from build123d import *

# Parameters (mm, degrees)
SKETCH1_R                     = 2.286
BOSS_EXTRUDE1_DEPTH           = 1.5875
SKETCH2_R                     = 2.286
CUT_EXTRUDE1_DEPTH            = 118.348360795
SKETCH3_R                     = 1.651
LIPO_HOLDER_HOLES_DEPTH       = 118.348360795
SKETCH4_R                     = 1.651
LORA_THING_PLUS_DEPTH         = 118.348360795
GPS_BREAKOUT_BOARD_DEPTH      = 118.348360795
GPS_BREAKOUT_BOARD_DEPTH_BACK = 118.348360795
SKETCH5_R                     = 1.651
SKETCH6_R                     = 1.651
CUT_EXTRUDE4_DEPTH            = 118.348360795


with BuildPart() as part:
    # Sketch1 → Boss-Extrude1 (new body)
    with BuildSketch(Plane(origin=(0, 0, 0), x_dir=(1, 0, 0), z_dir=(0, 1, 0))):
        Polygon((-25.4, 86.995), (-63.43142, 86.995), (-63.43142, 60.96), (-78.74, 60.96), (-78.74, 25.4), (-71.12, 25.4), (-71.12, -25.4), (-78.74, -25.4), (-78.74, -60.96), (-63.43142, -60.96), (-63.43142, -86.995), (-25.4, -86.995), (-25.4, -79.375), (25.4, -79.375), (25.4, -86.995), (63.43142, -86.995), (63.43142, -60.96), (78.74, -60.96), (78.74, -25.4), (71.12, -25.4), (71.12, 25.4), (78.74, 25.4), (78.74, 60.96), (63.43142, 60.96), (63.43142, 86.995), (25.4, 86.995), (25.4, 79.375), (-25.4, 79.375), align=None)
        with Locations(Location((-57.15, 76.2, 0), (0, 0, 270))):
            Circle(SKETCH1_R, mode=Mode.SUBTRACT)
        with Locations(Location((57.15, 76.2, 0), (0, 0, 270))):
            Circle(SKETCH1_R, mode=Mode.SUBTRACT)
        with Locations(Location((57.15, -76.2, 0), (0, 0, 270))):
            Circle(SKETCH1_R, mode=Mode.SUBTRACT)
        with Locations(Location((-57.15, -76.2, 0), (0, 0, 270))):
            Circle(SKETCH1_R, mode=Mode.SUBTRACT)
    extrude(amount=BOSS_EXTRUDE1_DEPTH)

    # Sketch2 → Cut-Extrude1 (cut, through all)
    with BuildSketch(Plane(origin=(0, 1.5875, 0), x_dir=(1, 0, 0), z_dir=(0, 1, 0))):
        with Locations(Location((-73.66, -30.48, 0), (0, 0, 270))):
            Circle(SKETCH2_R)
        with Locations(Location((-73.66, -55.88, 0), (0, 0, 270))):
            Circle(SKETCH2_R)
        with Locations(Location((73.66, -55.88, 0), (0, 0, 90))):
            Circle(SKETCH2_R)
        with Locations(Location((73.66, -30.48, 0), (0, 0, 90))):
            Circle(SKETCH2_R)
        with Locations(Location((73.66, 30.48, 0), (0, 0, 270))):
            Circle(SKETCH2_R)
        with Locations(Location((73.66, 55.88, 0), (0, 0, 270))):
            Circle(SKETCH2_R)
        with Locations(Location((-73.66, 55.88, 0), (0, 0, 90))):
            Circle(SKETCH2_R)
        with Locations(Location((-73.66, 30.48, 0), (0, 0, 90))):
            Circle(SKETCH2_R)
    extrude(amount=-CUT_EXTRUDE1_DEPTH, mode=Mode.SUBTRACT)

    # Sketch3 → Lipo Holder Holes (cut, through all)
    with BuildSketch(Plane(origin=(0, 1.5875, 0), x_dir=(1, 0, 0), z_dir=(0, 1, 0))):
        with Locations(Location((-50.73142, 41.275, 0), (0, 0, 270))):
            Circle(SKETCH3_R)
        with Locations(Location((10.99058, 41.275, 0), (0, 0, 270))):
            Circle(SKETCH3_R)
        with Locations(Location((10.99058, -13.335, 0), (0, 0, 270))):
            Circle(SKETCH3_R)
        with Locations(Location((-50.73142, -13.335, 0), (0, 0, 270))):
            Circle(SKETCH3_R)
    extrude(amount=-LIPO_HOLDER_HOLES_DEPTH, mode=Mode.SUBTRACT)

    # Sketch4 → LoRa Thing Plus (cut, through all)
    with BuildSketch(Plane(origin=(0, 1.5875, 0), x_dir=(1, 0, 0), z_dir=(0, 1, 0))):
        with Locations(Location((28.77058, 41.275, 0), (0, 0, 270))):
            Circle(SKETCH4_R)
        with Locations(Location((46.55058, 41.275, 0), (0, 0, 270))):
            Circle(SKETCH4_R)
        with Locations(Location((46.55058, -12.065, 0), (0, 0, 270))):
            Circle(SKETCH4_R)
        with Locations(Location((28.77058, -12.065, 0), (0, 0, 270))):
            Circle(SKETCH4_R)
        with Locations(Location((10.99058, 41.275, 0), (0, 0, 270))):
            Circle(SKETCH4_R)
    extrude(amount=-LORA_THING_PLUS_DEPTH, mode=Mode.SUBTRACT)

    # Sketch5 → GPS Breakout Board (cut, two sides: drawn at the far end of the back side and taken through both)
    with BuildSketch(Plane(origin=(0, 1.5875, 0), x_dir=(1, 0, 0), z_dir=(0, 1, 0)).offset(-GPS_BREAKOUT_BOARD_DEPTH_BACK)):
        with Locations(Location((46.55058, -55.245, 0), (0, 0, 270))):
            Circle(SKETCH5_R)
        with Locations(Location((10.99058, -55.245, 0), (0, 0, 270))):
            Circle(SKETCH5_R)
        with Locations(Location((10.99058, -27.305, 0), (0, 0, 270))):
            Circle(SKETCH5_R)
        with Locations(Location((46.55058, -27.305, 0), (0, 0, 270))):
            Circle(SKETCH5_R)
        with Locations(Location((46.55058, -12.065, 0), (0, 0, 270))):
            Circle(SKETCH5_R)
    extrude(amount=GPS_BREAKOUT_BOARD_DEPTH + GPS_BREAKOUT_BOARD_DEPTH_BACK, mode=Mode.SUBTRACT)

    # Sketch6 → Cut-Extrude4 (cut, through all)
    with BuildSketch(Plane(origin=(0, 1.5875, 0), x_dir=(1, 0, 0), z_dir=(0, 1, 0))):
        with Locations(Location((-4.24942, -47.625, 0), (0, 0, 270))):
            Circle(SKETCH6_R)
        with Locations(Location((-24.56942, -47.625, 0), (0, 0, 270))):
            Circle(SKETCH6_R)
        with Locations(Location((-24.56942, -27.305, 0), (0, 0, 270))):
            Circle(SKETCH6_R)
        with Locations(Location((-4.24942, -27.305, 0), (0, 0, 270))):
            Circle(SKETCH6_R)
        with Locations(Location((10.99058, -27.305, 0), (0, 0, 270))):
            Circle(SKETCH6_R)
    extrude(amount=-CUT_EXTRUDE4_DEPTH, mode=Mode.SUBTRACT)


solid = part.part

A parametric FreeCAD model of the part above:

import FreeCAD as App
import Part
import Sketcher
from FreeCAD import Vector
Q = App.Units.Quantity

doc = App.newDocument("Part")
params = doc.addObject("Spreadsheet::Sheet", "Params")
for row, (alias, value) in enumerate([
    ("sketch1_diameter", "0.18 in"),
    ("sketch1_width", "2 in"),
    ("sketch1_width2", "0.3 in"),
    ("sketch1_height", "1.4 in"),
    ("sketch1_height2", "1.025 in"),
    ("pad1_length", "0.0625 in"),
    ("sketch2_diameter", "0.18 in"),
    ("sketch3_diameter", "0.13 in"),
    ("sketch4_diameter", "0.13 in"),
    ("sketch5_diameter", "0.13 in"),
    ("sketch6_diameter", "0.13 in"),
], start=1):
    params.set(f"A{row}", alias)
    params.set(f"B{row}", "=" + value)
    params.setAlias(f"B{row}", alias)

body = doc.addObject("PartDesign::Body", "Body")

# Sketch on XZ plane
sketch1 = body.newObject("Sketcher::SketchObject", "Sketch")
sketch1.AttachmentSupport = (doc.getObject("XZ_Plane"), [""])
sketch1.MapMode = "FlatFace"
sketch1.addGeometry(Part.LineSegment(Vector(-25.4, -86.995, 0), Vector(-63.43142, -86.995, 0)), False)
sketch1.addGeometry(Part.LineSegment(Vector(-63.43142, -86.995, 0), Vector(-63.43142, -60.96, 0)), False)
sketch1.addGeometry(Part.LineSegment(Vector(-63.43142, -60.96, 0), Vector(-78.74, -60.96, 0)), False)
sketch1.addGeometry(Part.LineSegment(Vector(-78.74, -60.96, 0), Vector(-78.74, -25.4, 0)), False)
sketch1.addGeometry(Part.LineSegment(Vector(-78.74, -25.4, 0), Vector(-71.12, -25.4, 0)), False)
sketch1.addGeometry(Part.LineSegment(Vector(-71.12, -25.4, 0), Vector(-71.12, 25.4, 0)), False)
sketch1.addGeometry(Part.LineSegment(Vector(-71.12, 25.4, 0), Vector(-78.74, 25.4, 0)), False)
sketch1.addGeometry(Part.LineSegment(Vector(-78.74, 25.4, 0), Vector(-78.74, 60.96, 0)), False)
sketch1.addGeometry(Part.LineSegment(Vector(-78.74, 60.96, 0), Vector(-63.43142, 60.96, 0)), False)
sketch1.addGeometry(Part.LineSegment(Vector(-63.43142, 60.96, 0), Vector(-63.43142, 86.995, 0)), False)
sketch1.addGeometry(Part.LineSegment(Vector(-63.43142, 86.995, 0), Vector(-25.4, 86.995, 0)), False)
sketch1.addGeometry(Part.LineSegment(Vector(-25.4, 86.995, 0), Vector(-25.4, 79.375, 0)), False)
sketch1.addGeometry(Part.LineSegment(Vector(-25.4, 79.375, 0), Vector(25.4, 79.375, 0)), False)
sketch1.addGeometry(Part.LineSegment(Vector(25.4, 79.375, 0), Vector(25.4, 86.995, 0)), False)
sketch1.addGeometry(Part.LineSegment(Vector(25.4, 86.995, 0), Vector(63.43142, 86.995, 0)), False)
sketch1.addGeometry(Part.LineSegment(Vector(63.43142, 86.995, 0), Vector(63.43142, 60.96, 0)), False)
sketch1.addGeometry(Part.LineSegment(Vector(63.43142, 60.96, 0), Vector(78.74, 60.96, 0)), False)
sketch1.addGeometry(Part.LineSegment(Vector(78.74, 60.96, 0), Vector(78.74, 25.4, 0)), False)
sketch1.addGeometry(Part.LineSegment(Vector(78.74, 25.4, 0), Vector(71.12, 25.4, 0)), False)
sketch1.addGeometry(Part.LineSegment(Vector(71.12, 25.4, 0), Vector(71.12, -25.4, 0)), False)
sketch1.addGeometry(Part.LineSegment(Vector(71.12, -25.4, 0), Vector(78.74, -25.4, 0)), False)
sketch1.addGeometry(Part.LineSegment(Vector(78.74, -25.4, 0), Vector(78.74, -60.96, 0)), False)
sketch1.addGeometry(Part.LineSegment(Vector(78.74, -60.96, 0), Vector(63.43142, -60.96, 0)), False)
sketch1.addGeometry(Part.LineSegment(Vector(63.43142, -60.96, 0), Vector(63.43142, -86.995, 0)), False)
sketch1.addGeometry(Part.LineSegment(Vector(63.43142, -86.995, 0), Vector(25.4, -86.995, 0)), False)
sketch1.addGeometry(Part.LineSegment(Vector(25.4, -86.995, 0), Vector(25.4, -79.375, 0)), False)
sketch1.addGeometry(Part.LineSegment(Vector(25.4, -79.375, 0), Vector(-25.4, -79.375, 0)), False)
sketch1.addGeometry(Part.LineSegment(Vector(-25.4, -79.375, 0), Vector(-25.4, -86.995, 0)), False)
sketch1.addGeometry(Part.Circle(Vector(-57.15, 76.2, 0), Vector(0, 0, 1), 2.286), False)
sketch1.addGeometry(Part.Circle(Vector(57.15, 76.2, 0), Vector(0, 0, 1), 2.286), False)
sketch1.addGeometry(Part.Circle(Vector(-57.15, -76.2, 0), Vector(0, 0, 1), 2.286), False)
sketch1.addGeometry(Part.Circle(Vector(57.15, -76.2, 0), Vector(0, 0, 1), 2.286), False)
sketch1.addConstraint(Sketcher.Constraint("Coincident", 0, 2, 1, 1))
sketch1.addConstraint(Sketcher.Constraint("Coincident", 1, 2, 2, 1))
sketch1.addConstraint(Sketcher.Constraint("Coincident", 2, 2, 3, 1))
sketch1.addConstraint(Sketcher.Constraint("Coincident", 3, 2, 4, 1))
sketch1.addConstraint(Sketcher.Constraint("Coincident", 4, 2, 5, 1))
sketch1.addConstraint(Sketcher.Constraint("Coincident", 5, 2, 6, 1))
sketch1.addConstraint(Sketcher.Constraint("Coincident", 6, 2, 7, 1))
sketch1.addConstraint(Sketcher.Constraint("Coincident", 7, 2, 8, 1))
sketch1.addConstraint(Sketcher.Constraint("Coincident", 8, 2, 9, 1))
sketch1.addConstraint(Sketcher.Constraint("Coincident", 9, 2, 10, 1))
sketch1.addConstraint(Sketcher.Constraint("Coincident", 10, 2, 11, 1))
sketch1.addConstraint(Sketcher.Constraint("Coincident", 11, 2, 12, 1))
sketch1.addConstraint(Sketcher.Constraint("Coincident", 12, 2, 13, 1))
sketch1.addConstraint(Sketcher.Constraint("Coincident", 13, 2, 14, 1))
sketch1.addConstraint(Sketcher.Constraint("Coincident", 14, 2, 15, 1))
sketch1.addConstraint(Sketcher.Constraint("Coincident", 15, 2, 16, 1))
sketch1.addConstraint(Sketcher.Constraint("Coincident", 16, 2, 17, 1))
sketch1.addConstraint(Sketcher.Constraint("Coincident", 17, 2, 18, 1))
sketch1.addConstraint(Sketcher.Constraint("Coincident", 18, 2, 19, 1))
sketch1.addConstraint(Sketcher.Constraint("Coincident", 19, 2, 20, 1))
sketch1.addConstraint(Sketcher.Constraint("Coincident", 20, 2, 21, 1))
sketch1.addConstraint(Sketcher.Constraint("Coincident", 21, 2, 22, 1))
sketch1.addConstraint(Sketcher.Constraint("Coincident", 22, 2, 23, 1))
sketch1.addConstraint(Sketcher.Constraint("Coincident", 23, 2, 24, 1))
sketch1.addConstraint(Sketcher.Constraint("Coincident", 24, 2, 25, 1))
sketch1.addConstraint(Sketcher.Constraint("Coincident", 25, 2, 26, 1))
sketch1.addConstraint(Sketcher.Constraint("Coincident", 26, 2, 27, 1))
sketch1.addConstraint(Sketcher.Constraint("Coincident", 27, 2, 0, 1))
sketch1.addConstraint(Sketcher.Constraint("Horizontal", 0))
sketch1.addConstraint(Sketcher.Constraint("Vertical", 1))
sketch1.addConstraint(Sketcher.Constraint("Horizontal", 2))
sketch1.addConstraint(Sketcher.Constraint("Vertical", 3))
sketch1.addConstraint(Sketcher.Constraint("Horizontal", 4))
sketch1.addConstraint(Sketcher.Constraint("Vertical", 5))
sketch1.addConstraint(Sketcher.Constraint("Horizontal", 6))
sketch1.addConstraint(Sketcher.Constraint("Vertical", 7))
sketch1.addConstraint(Sketcher.Constraint("Horizontal", 8))
sketch1.addConstraint(Sketcher.Constraint("Vertical", 9))
sketch1.addConstraint(Sketcher.Constraint("Horizontal", 10))
sketch1.addConstraint(Sketcher.Constraint("Vertical", 11))
sketch1.addConstraint(Sketcher.Constraint("Horizontal", 12))
sketch1.addConstraint(Sketcher.Constraint("Vertical", 13))
sketch1.addConstraint(Sketcher.Constraint("Horizontal", 14))
sketch1.addConstraint(Sketcher.Constraint("Vertical", 15))
sketch1.addConstraint(Sketcher.Constraint("Horizontal", 16))
sketch1.addConstraint(Sketcher.Constraint("Vertical", 17))
sketch1.addConstraint(Sketcher.Constraint("Horizontal", 18))
sketch1.addConstraint(Sketcher.Constraint("Vertical", 19))
sketch1.addConstraint(Sketcher.Constraint("Horizontal", 20))
sketch1.addConstraint(Sketcher.Constraint("Vertical", 21))
sketch1.addConstraint(Sketcher.Constraint("Horizontal", 22))
sketch1.addConstraint(Sketcher.Constraint("Vertical", 23))
sketch1.addConstraint(Sketcher.Constraint("Horizontal", 24))
sketch1.addConstraint(Sketcher.Constraint("Vertical", 25))
sketch1.addConstraint(Sketcher.Constraint("Horizontal", 26))
sketch1.addConstraint(Sketcher.Constraint("Vertical", 27))
sketch1.addConstraint(Sketcher.Constraint("Equal", 28, 29))
sketch1.addConstraint(Sketcher.Constraint("Equal", 29, 30))
sketch1.addConstraint(Sketcher.Constraint("Equal", 30, 31))
sketch1.addConstraint(Sketcher.Constraint("Symmetric", 29, 3, 30, 3, -1, 1))
sketch1.addConstraint(Sketcher.Constraint("Symmetric", 28, 3, 31, 3, -1, 1))
sketch1.addConstraint(Sketcher.Constraint("Symmetric", 0, 2, 14, 2, -1, 1))
sketch1.addConstraint(Sketcher.Constraint("Symmetric", 2, 2, 16, 2, -1, 1))
sketch1.addConstraint(Sketcher.Constraint("Symmetric", 4, 2, 18, 2, -1, 1))
sketch1.addConstraint(Sketcher.Constraint("Symmetric", 6, 2, 20, 2, -1, 1))
sketch1.addConstraint(Sketcher.Constraint("Symmetric", 8, 2, 22, 2, -1, 1))
sketch1.addConstraint(Sketcher.Constraint("Symmetric", 10, 2, 24, 2, -1, 1))
sketch1.addConstraint(Sketcher.Constraint("Symmetric", 12, 2, 26, 2, -1, 1))
sketch1.addConstraint(Sketcher.Constraint("Symmetric", 28, 3, 29, 3, -2))
sketch1.addConstraint(Sketcher.Constraint("Symmetric", 10, 2, 13, 2, -2))
sketch1.addConstraint(Sketcher.Constraint("Symmetric", 8, 2, 15, 2, -2))
sketch1.addConstraint(Sketcher.Constraint("Symmetric", 6, 2, 17, 2, -2))
sketch1.addConstraint(Sketcher.Constraint("Equal", 26, 5))
sketch1.addConstraint(Sketcher.Constraint("Equal", 20, 11))
sketch1.addConstraint(Sketcher.Constraint("Diameter", 28, Q("0.18 in")))
sketch1.addConstraint(Sketcher.Constraint("DistanceX", 12, 1, 12, 2, Q("2 in")))
sketch1.addConstraint(Sketcher.Constraint("DistanceX", 4, 1, 4, 2, Q("0.3 in")))
sketch1.addConstraint(Sketcher.Constraint("DistanceY", 3, 1, 3, 2, Q("1.4 in")))
sketch1.addConstraint(Sketcher.Constraint("DistanceY", -1, 1, 28, 3, Q("3 in")))
sketch1.addConstraint(Sketcher.Constraint("DistanceX", 2, 2, -1, 1, Q("3.1 in")))
sketch1.addConstraint(Sketcher.Constraint("DistanceX", 28, 3, 29, 3, Q("4.5 in")))
sketch1.addConstraint(Sketcher.Constraint("DistanceY", 1, 1, 1, 2, Q("1.025 in")))
sketch1.addConstraint(Sketcher.Constraint("DistanceX", 0, 2, 0, 1, Q("1.4973 in")))
sketch1.setExpression("Constraints[74]", "Params.sketch1_diameter")
sketch1.setExpression("Constraints[75]", "Params.sketch1_width")
sketch1.setExpression("Constraints[76]", "Params.sketch1_width2")
sketch1.setExpression("Constraints[77]", "Params.sketch1_height")
sketch1.setExpression("Constraints[81]", "Params.sketch1_height2")
pad1 = body.newObject("PartDesign::Pad", "Pad")
pad1.Profile = sketch1
pad1.setExpression("Length", "Params.pad1_length")
pad1.Reversed = True

# Sketch on XZ plane
sketch2 = body.newObject("Sketcher::SketchObject", "Sketch001")
sketch2.AttachmentSupport = (doc.getObject("XZ_Plane"), [""])
sketch2.MapMode = "FlatFace"
sketch2.AttachmentOffset = App.Placement(Vector(0, 0, -0.0625 * 25.4), App.Rotation())
sketch2.addGeometry(Part.Circle(Vector(-73.66, 30.48, 0), Vector(0, 0, 1), 2.286), False)
sketch2.addGeometry(Part.Circle(Vector(-73.66, 55.88, 0), Vector(0, 0, 1), 2.286), False)
sketch2.addGeometry(Part.Circle(Vector(73.66, 55.88, 0), Vector(0, 0, 1), 2.286), False)
sketch2.addGeometry(Part.Circle(Vector(73.66, 30.48, 0), Vector(0, 0, 1), 2.286), False)
sketch2.addGeometry(Part.Circle(Vector(73.66, -30.48, 0), Vector(0, 0, 1), 2.286), False)
sketch2.addGeometry(Part.Circle(Vector(73.66, -55.88, 0), Vector(0, 0, 1), 2.286), False)
sketch2.addGeometry(Part.Circle(Vector(-73.66, -55.88, 0), Vector(0, 0, 1), 2.286), False)
sketch2.addGeometry(Part.Circle(Vector(-73.66, -30.48, 0), Vector(0, 0, 1), 2.286), False)
sketch2.addConstraint(Sketcher.Constraint("Equal", 0, 1))
sketch2.addConstraint(Sketcher.Constraint("Equal", 1, 2))
sketch2.addConstraint(Sketcher.Constraint("Equal", 2, 3))
sketch2.addConstraint(Sketcher.Constraint("Equal", 3, 4))
sketch2.addConstraint(Sketcher.Constraint("Equal", 4, 5))
sketch2.addConstraint(Sketcher.Constraint("Equal", 5, 6))
sketch2.addConstraint(Sketcher.Constraint("Equal", 6, 7))
sketch2.addConstraint(Sketcher.Constraint("Symmetric", 0, 3, 4, 3, -1, 1))
sketch2.addConstraint(Sketcher.Constraint("Symmetric", 1, 3, 5, 3, -1, 1))
sketch2.addConstraint(Sketcher.Constraint("Symmetric", 2, 3, 6, 3, -1, 1))
sketch2.addConstraint(Sketcher.Constraint("Symmetric", 3, 3, 7, 3, -1, 1))
sketch2.addConstraint(Sketcher.Constraint("Symmetric", 1, 3, 2, 3, -2))
sketch2.addConstraint(Sketcher.Constraint("Symmetric", 0, 3, 3, 3, -2))
sketch2.addConstraint(Sketcher.Constraint("Vertical", 0, 3, 1, 3))
sketch2.addConstraint(Sketcher.Constraint("Diameter", 0, Q("0.18 in")))
sketch2.addConstraint(Sketcher.Constraint("DistanceY", 0, 3, 1, 3, Q("1 in")))
sketch2.addConstraint(Sketcher.Constraint("DistanceX", 0, 3, -1, 1, Q("2.9 in")))
sketch2.addConstraint(Sketcher.Constraint("DistanceY", -1, 1, 0, 3, Q("1.2 in")))
sketch2.setExpression("Constraints[14]", "Params.sketch2_diameter")
pocket1 = body.newObject("PartDesign::Pocket", "Pocket")
pocket1.Profile = sketch2
pocket1.Type = "ThroughAll"
pocket1.Reversed = True

# Sketch on XZ plane
sketch3 = body.newObject("Sketcher::SketchObject", "Sketch002")
sketch3.AttachmentSupport = (doc.getObject("XZ_Plane"), [""])
sketch3.MapMode = "FlatFace"
sketch3.AttachmentOffset = App.Placement(Vector(0, 0, -0.0625 * 25.4), App.Rotation())
sketch3.addGeometry(Part.Circle(Vector(-50.73142, -41.275, 0), Vector(0, 0, 1), 1.651), False)
sketch3.addGeometry(Part.Circle(Vector(10.99058, -41.275, 0), Vector(0, 0, 1), 1.651), False)
sketch3.addGeometry(Part.Circle(Vector(10.99058, 13.335, 0), Vector(0, 0, 1), 1.651), False)
sketch3.addGeometry(Part.Circle(Vector(-50.73142, 13.335, 0), Vector(0, 0, 1), 1.651), False)
sketch3.addConstraint(Sketcher.Constraint("Equal", 0, 1))
sketch3.addConstraint(Sketcher.Constraint("Equal", 1, 2))
sketch3.addConstraint(Sketcher.Constraint("Equal", 2, 3))
sketch3.addConstraint(Sketcher.Constraint("Horizontal", 0, 3, 1, 3))
sketch3.addConstraint(Sketcher.Constraint("Horizontal", 2, 3, 3, 3))
sketch3.addConstraint(Sketcher.Constraint("Vertical", 1, 3, 2, 3))
sketch3.addConstraint(Sketcher.Constraint("Vertical", 0, 3, 3, 3))
sketch3.addConstraint(Sketcher.Constraint("Diameter", 0, Q("0.13 in")))
sketch3.addConstraint(Sketcher.Constraint("DistanceX", 0, 3, 1, 3, Q("2.43 in")))
sketch3.addConstraint(Sketcher.Constraint("DistanceY", 1, 3, 2, 3, Q("2.15 in")))
sketch3.addConstraint(Sketcher.Constraint("DistanceY", 0, 3, -1, 1, Q("1.625 in")))
sketch3.addConstraint(Sketcher.Constraint("DistanceX", 0, 3, -1, 1, Q("1.9973 in")))
sketch3.setExpression("Constraints[7]", "Params.sketch3_diameter")
pocket2 = body.newObject("PartDesign::Pocket", "Pocket001")
pocket2.Profile = sketch3
pocket2.Type = "ThroughAll"
pocket2.Reversed = True

# Sketch on XZ plane
sketch4 = body.newObject("Sketcher::SketchObject", "Sketch003")
sketch4.AttachmentSupport = (doc.getObject("XZ_Plane"), [""])
sketch4.MapMode = "FlatFace"
sketch4.AttachmentOffset = App.Placement(Vector(0, 0, -0.0625 * 25.4), App.Rotation())
sketch4.addGeometry(Part.Circle(Vector(28.77058, -41.275, 0), Vector(0, 0, 1), 1.651), False)
sketch4.addGeometry(Part.Circle(Vector(46.55058, -41.275, 0), Vector(0, 0, 1), 1.651), False)
sketch4.addGeometry(Part.Circle(Vector(46.55058, 12.065, 0), Vector(0, 0, 1), 1.651), False)
sketch4.addGeometry(Part.Circle(Vector(28.77058, 12.065, 0), Vector(0, 0, 1), 1.651), False)
sketch4.addGeometry(Part.Circle(Vector(10.99058, -41.275, 0), Vector(0, 0, 1), 1.651), False)
sketch4.addConstraint(Sketcher.Constraint("Equal", 0, 1))
sketch4.addConstraint(Sketcher.Constraint("Equal", 1, 2))
sketch4.addConstraint(Sketcher.Constraint("Equal", 2, 3))
sketch4.addConstraint(Sketcher.Constraint("Equal", 3, 4))
sketch4.addConstraint(Sketcher.Constraint("Horizontal", 0, 3, 1, 3))
sketch4.addConstraint(Sketcher.Constraint("Horizontal", 2, 3, 3, 3))
sketch4.addConstraint(Sketcher.Constraint("Horizontal", 1, 3, 4, 3))
sketch4.addConstraint(Sketcher.Constraint("Vertical", 1, 3, 2, 3))
sketch4.addConstraint(Sketcher.Constraint("Vertical", 0, 3, 3, 3))
sketch4.addConstraint(Sketcher.Constraint("Diameter", 0, Q("0.13 in")))
sketch4.addConstraint(Sketcher.Constraint("DistanceX", 0, 3, 1, 3, Q("0.7 in")))
sketch4.addConstraint(Sketcher.Constraint("DistanceY", 1, 3, 2, 3, Q("2.1 in")))
sketch4.addConstraint(Sketcher.Constraint("DistanceX", 4, 3, 0, 3, Q("0.7 in")))
sketch4.addConstraint(Sketcher.Constraint("DistanceY", 0, 3, -1, 1, Q("1.625 in")))
sketch4.addConstraint(Sketcher.Constraint("DistanceX", -1, 1, 0, 3, Q("1.1327 in")))
sketch4.setExpression("Constraints[9]", "Params.sketch4_diameter")
pocket3 = body.newObject("PartDesign::Pocket", "Pocket002")
pocket3.Profile = sketch4
pocket3.Type = "ThroughAll"
pocket3.Reversed = True

# Sketch on XZ plane
sketch5 = body.newObject("Sketcher::SketchObject", "Sketch004")
sketch5.AttachmentSupport = (doc.getObject("XZ_Plane"), [""])
sketch5.MapMode = "FlatFace"
sketch5.AttachmentOffset = App.Placement(Vector(0, 0, -0.0625 * 25.4), App.Rotation())
sketch5.addGeometry(Part.Circle(Vector(46.55058, 55.245, 0), Vector(0, 0, 1), 1.651), False)
sketch5.addGeometry(Part.Circle(Vector(10.99058, 55.245, 0), Vector(0, 0, 1), 1.651), False)
sketch5.addGeometry(Part.Circle(Vector(10.99058, 27.305, 0), Vector(0, 0, 1), 1.651), False)
sketch5.addGeometry(Part.Circle(Vector(46.55058, 27.305, 0), Vector(0, 0, 1), 1.651), False)
sketch5.addGeometry(Part.Circle(Vector(46.55058, 12.065, 0), Vector(0, 0, 1), 1.651), False)
sketch5.addConstraint(Sketcher.Constraint("Equal", 0, 1))
sketch5.addConstraint(Sketcher.Constraint("Equal", 1, 2))
sketch5.addConstraint(Sketcher.Constraint("Equal", 2, 3))
sketch5.addConstraint(Sketcher.Constraint("Equal", 3, 4))
sketch5.addConstraint(Sketcher.Constraint("Horizontal", 0, 3, 1, 3))
sketch5.addConstraint(Sketcher.Constraint("Horizontal", 2, 3, 3, 3))
sketch5.addConstraint(Sketcher.Constraint("Vertical", 1, 3, 2, 3))
sketch5.addConstraint(Sketcher.Constraint("Vertical", 0, 3, 3, 3))
sketch5.addConstraint(Sketcher.Constraint("Vertical", 3, 3, 4, 3))
sketch5.addConstraint(Sketcher.Constraint("Diameter", 0, Q("0.13 in")))
sketch5.addConstraint(Sketcher.Constraint("DistanceX", 1, 3, 0, 3, Q("1.4 in")))
sketch5.addConstraint(Sketcher.Constraint("DistanceY", 2, 3, 1, 3, Q("1.1 in")))
sketch5.addConstraint(Sketcher.Constraint("DistanceY", 4, 3, 3, 3, Q("0.6 in")))
sketch5.addConstraint(Sketcher.Constraint("DistanceY", -1, 1, 0, 3, Q("2.175 in")))
sketch5.addConstraint(Sketcher.Constraint("DistanceX", -1, 1, 0, 3, Q("1.8327 in")))
sketch5.setExpression("Constraints[9]", "Params.sketch5_diameter")
pocket4 = body.newObject("PartDesign::Pocket", "Pocket003")
pocket4.Profile = sketch5
pocket4.Type = "ThroughAll"
pocket4.Midplane = True

# Sketch on XZ plane
sketch6 = body.newObject("Sketcher::SketchObject", "Sketch005")
sketch6.AttachmentSupport = (doc.getObject("XZ_Plane"), [""])
sketch6.MapMode = "FlatFace"
sketch6.AttachmentOffset = App.Placement(Vector(0, 0, -0.0625 * 25.4), App.Rotation())
sketch6.addGeometry(Part.Circle(Vector(-4.24942, 47.625, 0), Vector(0, 0, 1), 1.651), False)
sketch6.addGeometry(Part.Circle(Vector(-24.56942, 47.625, 0), Vector(0, 0, 1), 1.651), False)
sketch6.addGeometry(Part.Circle(Vector(-24.56942, 27.305, 0), Vector(0, 0, 1), 1.651), False)
sketch6.addGeometry(Part.Circle(Vector(-4.24942, 27.305, 0), Vector(0, 0, 1), 1.651), False)
sketch6.addGeometry(Part.Circle(Vector(10.99058, 27.305, 0), Vector(0, 0, 1), 1.651), False)
sketch6.addConstraint(Sketcher.Constraint("Equal", 0, 1))
sketch6.addConstraint(Sketcher.Constraint("Equal", 1, 2))
sketch6.addConstraint(Sketcher.Constraint("Equal", 2, 3))
sketch6.addConstraint(Sketcher.Constraint("Equal", 3, 4))
sketch6.addConstraint(Sketcher.Constraint("Horizontal", 0, 3, 1, 3))
sketch6.addConstraint(Sketcher.Constraint("Horizontal", 2, 3, 3, 3))
sketch6.addConstraint(Sketcher.Constraint("Horizontal", 3, 3, 4, 3))
sketch6.addConstraint(Sketcher.Constraint("Vertical", 1, 3, 2, 3))
sketch6.addConstraint(Sketcher.Constraint("Vertical", 0, 3, 3, 3))
sketch6.addConstraint(Sketcher.Constraint("Diameter", 0, Q("0.13 in")))
sketch6.addConstraint(Sketcher.Constraint("DistanceX", 1, 3, 0, 3, Q("0.8 in")))
sketch6.addConstraint(Sketcher.Constraint("DistanceY", 2, 3, 1, 3, Q("0.8 in")))
sketch6.addConstraint(Sketcher.Constraint("DistanceX", 3, 3, 4, 3, Q("0.6 in")))
sketch6.addConstraint(Sketcher.Constraint("DistanceY", -1, 1, 0, 3, Q("1.875 in")))
sketch6.addConstraint(Sketcher.Constraint("DistanceX", 0, 3, -1, 1, Q("0.1673 in")))
sketch6.setExpression("Constraints[9]", "Params.sketch6_diameter")
pocket5 = body.newObject("PartDesign::Pocket", "Pocket004")
pocket5.Profile = sketch6
pocket5.Type = "ThroughAll"
pocket5.Reversed = True

doc.recompute()
